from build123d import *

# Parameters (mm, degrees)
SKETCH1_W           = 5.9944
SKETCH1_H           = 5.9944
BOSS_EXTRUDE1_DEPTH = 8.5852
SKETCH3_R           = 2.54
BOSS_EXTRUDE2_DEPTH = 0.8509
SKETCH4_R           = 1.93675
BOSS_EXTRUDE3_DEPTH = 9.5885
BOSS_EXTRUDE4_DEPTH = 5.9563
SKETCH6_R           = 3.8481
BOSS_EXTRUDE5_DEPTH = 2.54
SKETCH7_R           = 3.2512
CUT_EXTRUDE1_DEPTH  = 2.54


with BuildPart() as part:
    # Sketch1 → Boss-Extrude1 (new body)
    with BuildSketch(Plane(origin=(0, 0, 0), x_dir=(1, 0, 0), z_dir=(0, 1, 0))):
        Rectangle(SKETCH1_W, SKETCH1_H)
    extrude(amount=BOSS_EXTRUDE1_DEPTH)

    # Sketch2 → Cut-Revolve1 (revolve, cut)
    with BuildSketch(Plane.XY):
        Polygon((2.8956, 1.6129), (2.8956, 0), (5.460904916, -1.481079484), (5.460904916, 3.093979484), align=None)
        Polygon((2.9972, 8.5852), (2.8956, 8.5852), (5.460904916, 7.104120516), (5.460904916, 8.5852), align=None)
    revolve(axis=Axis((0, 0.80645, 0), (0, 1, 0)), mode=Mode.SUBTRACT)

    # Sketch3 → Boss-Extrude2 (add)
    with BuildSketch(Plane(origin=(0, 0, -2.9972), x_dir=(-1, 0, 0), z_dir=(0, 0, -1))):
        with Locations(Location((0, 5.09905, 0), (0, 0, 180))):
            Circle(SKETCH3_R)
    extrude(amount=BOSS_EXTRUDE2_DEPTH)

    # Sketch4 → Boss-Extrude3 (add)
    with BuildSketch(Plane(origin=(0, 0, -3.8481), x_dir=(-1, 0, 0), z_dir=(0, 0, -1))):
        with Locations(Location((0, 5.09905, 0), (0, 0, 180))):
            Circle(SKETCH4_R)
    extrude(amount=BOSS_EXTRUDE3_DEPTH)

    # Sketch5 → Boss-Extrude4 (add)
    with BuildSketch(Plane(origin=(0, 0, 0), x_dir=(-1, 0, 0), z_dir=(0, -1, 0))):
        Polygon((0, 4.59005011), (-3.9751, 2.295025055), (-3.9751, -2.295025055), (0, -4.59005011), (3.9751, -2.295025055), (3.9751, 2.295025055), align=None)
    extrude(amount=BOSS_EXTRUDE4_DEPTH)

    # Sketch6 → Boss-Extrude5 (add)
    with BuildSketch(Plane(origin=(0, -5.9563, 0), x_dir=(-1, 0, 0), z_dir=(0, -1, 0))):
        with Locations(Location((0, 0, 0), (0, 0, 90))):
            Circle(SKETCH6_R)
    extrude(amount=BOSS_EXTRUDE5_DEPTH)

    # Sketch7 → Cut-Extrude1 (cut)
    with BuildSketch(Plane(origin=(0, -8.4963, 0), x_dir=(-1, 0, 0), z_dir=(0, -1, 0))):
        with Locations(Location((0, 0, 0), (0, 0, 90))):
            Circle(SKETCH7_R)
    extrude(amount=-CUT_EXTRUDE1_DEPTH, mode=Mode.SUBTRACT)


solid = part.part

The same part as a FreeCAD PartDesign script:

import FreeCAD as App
import Part
import Sketcher
from FreeCAD import Vector
Q = App.Units.Quantity


def add_polygon(sketch, points):
    """Adds a closed chain of lines whose ends are joined by coincident constraints."""
    first, n = sketch.GeometryCount, len(points)
    for a, b in zip(points, points[1:] + points[:1]):
        sketch.addGeometry(Part.LineSegment(App.Vector(*a, 0), App.Vector(*b, 0)), False)
    for i in range(n):
        sketch.addConstraint(Sketcher.Constraint("Coincident", first + i, 2, first + (i + 1) % n, 1))

doc = App.newDocument("Part")
params = doc.addObject("Spreadsheet::Sheet", "Params")
for row, (alias, value) in enumerate([
    ("sketch1_width", "0.236 in"),
    ("pad1_length", "0.338 in"),
    ("groove_angle", "360 deg"),
    ("sketch3_diameter", "0.2 in"),
    ("pad2_length", "0.0335 in"),
    ("pad3_length", "0.3775 in"),
    ("pad4_length", "0.2345 in"),
    ("sketch6_diameter", "0.303 in"),
    ("pad5_length", "0.1 in"),
    ("sketch7_diameter", "0.256 in"),
    ("pocket1_length", "0.1 in"),
], start=1):
    params.set(f"A{row}", alias)
    params.set(f"B{row}", "=" + value)
    params.setAlias(f"B{row}", alias)

body = doc.addObject("PartDesign::Body", "Body")

sketch1 = doc.addObject("Sketcher::SketchObject", "Sketch")
body.addObject(sketch1)
sketch1.AttachmentSupport = (doc.XZ_Plane, [""])
sketch1.MapMode = "FlatFace"
add_polygon(sketch1, [(-2.9972, -2.9972), (-2.9972, 2.9972), (2.9972, 2.9972), (2.9972, -2.9972)])
sketch1.addConstraint(Sketcher.Constraint("Vertical", 0))
sketch1.addConstraint(Sketcher.Constraint("Horizontal", 1))
sketch1.addConstraint(Sketcher.Constraint("Vertical", 2))
sketch1.addConstraint(Sketcher.Constraint("Horizontal", 3))
sketch1.addConstraint(Sketcher.Constraint("Symmetric", 0, 2, 2, 2, -1, 1))
sketch1.addConstraint(Sketcher.Constraint("Equal", 3, 0))
sketch1.addConstraint(Sketcher.Constraint("DistanceX", 1, 1, 1, 2, Q("0.236 in")))
sketch1.setExpression("Constraints[10]", "Params.sketch1_width")
pad1 = doc.addObject("PartDesign::Pad", "Pad")
body.addObject(pad1)
pad1.Profile = sketch1
pad1.setExpression("Length", "Params.pad1_length")
pad1.Reversed = True

sketch2 = doc.addObject("Sketcher::SketchObject", "Sketch001")
body.addObject(sketch2)
sketch2.AttachmentSupport = (doc.XY_Plane, [""])
sketch2.MapMode = "FlatFace"
add_polygon(sketch2, [(2.8956, 1.6129), (2.8956, 0), (5.460905, -1.481079), (5.460905, 3.093979)])
add_polygon(sketch2, [(2.8956, 8.5852), (5.460905, 7.104121), (5.460905, 8.5852)])
sketch2.addConstraint(Sketcher.Constraint("Vertical", 0))
sketch2.addConstraint(Sketcher.Constraint("Vertical", 2))
sketch2.addConstraint(Sketcher.Constraint("Vertical", 5))
sketch2.addConstraint(Sketcher.Constraint("Horizontal", 6))
sketch2.addConstraint(Sketcher.Constraint("PointOnObject", 0, 2, -1))
sketch2.addConstraint(Sketcher.Constraint("Parallel", 1, 4))
sketch2.addConstraint(Sketcher.Constraint("Vertical", 2, 2, 4, 2))
sketch2.addConstraint(Sketcher.Constraint("Vertical", 3, 2, 6, 2))
sketch2.addConstraint(Sketcher.Constraint("Equal", 1, 3))
sketch2.addConstraint(Sketcher.Constraint("Angle", 1, Q("-30 deg")))
sketch2.addConstraint(Sketcher.Constraint("DistanceY", 0, 2, 0, 1, Q("0.0635 in")))
sketch2.addConstraint(Sketcher.Constraint("DistanceX", -1, 1, 0, 2, Q("0.114 in")))
sketch2.addConstraint(Sketcher.Constraint("DistanceY", -1, 1, 5, 2, Q("0.338 in")))
sketch2.addConstraint(Sketcher.Constraint("DistanceY", 2, 1, 2, 2, 4.575059))
groove = doc.addObject("PartDesign::Groove", "Groove")
body.addObject(groove)
groove.Profile = sketch2
groove.ReferenceAxis = (sketch2, ["V_Axis"])
groove.setExpression("Angle", "Params.groove_angle")

sketch3 = doc.addObject("Sketcher::SketchObject", "Sketch002")
body.addObject(sketch3)
sketch3.AttachmentSupport = (doc.XY_Plane, [""])
sketch3.MapMode = "FlatFace"
sketch3.AttachmentOffset = App.Placement(Vector(0, 0, -0.118 * 25.4), App.Rotation())
sketch3.addGeometry(Part.Circle(Vector(0, 5.09905, 0), Vector(0, 0, 1), 2.54), False)
sketch3.addConstraint(Sketcher.Constraint("PointOnObject", 0, 3, -2))
sketch3.addConstraint(Sketcher.Constraint("Diameter", 0, Q("0.2 in")))
sketch3.addConstraint(Sketcher.Constraint("DistanceY", -1, 1, 0, 3, 5.09905))
sketch3.setExpression("Constraints[1]", "Params.sketch3_diameter")
pad2 = doc.addObject("PartDesign::Pad", "Pad001")
body.addObject(pad2)
pad2.Profile = sketch3
pad2.setExpression("Length", "Params.pad2_length")
pad2.Reversed = True

sketch4 = doc.addObject("Sketcher::SketchObject", "Sketch003")
body.addObject(sketch4)
sketch4.AttachmentSupport = (doc.XY_Plane, [""])
sketch4.MapMode = "FlatFace"
sketch4.AttachmentOffset = App.Placement(Vector(0, 0, -0.1515 * 25.4), App.Rotation())
sketch4.addGeometry(Part.Circle(Vector(0, 5.09905, 0), Vector(0, 0, 1), 1.93675), False)
sketch4.addConstraint(Sketcher.Constraint("PointOnObject", 0, 3, -2))
sketch4.addConstraint(Sketcher.Constraint("Diameter", 0, Q("0.1525 in")))
sketch4.addConstraint(Sketcher.Constraint("DistanceY", -1, 1, 0, 3, 5.09905))
pad3 = doc.addObject("PartDesign::Pad", "Pad002")
body.addObject(pad3)
pad3.Profile = sketch4
pad3.setExpression("Length", "Params.pad3_length")
pad3.Reversed = True

sketch5 = doc.addObject("Sketcher::SketchObject", "Sketch004")
body.addObject(sketch5)
sketch5.AttachmentSupport = (doc.XZ_Plane, [""])
sketch5.MapMode = "FlatFace"
add_polygon(sketch5, [(0, -4.59005), (3.9751, -2.295025), (3.9751, 2.295025), (0, 4.59005), (-3.9751, 2.295025), (-3.9751, -2.295025)])
sketch5.addConstraint(Sketcher.Constraint("Vertical", 1))
sketch5.addConstraint(Sketcher.Constraint("Vertical", 4))
sketch5.addConstraint(Sketcher.Constraint("Symmetric", 0, 2, 3, 2, -1, 1))
sketch5.addConstraint(Sketcher.Constraint("Symmetric", 2, 2, 5, 2, -1, 1))
sketch5.addConstraint(Sketcher.Constraint("PointOnObject", 2, 2, -2))
sketch5.addConstraint(Sketcher.Constraint("Parallel", 2, 5))
sketch5.addConstraint(Sketcher.Constraint("Horizontal", 1, 2, 3, 2))
sketch5.addConstraint(Sketcher.Constraint("Angle", 0, Q("30 deg")))
sketch5.addConstraint(Sketcher.Constraint("DistanceX", 3, 2, 1, 2, Q("0.313 in")))
sketch5.addConstraint(Sketcher.Constraint("DistanceY", 1, 1, 1, 2, 4.59005))
pad4 = doc.addObject("PartDesign::Pad", "Pad003")
body.addObject(pad4)
pad4.Profile = sketch5
pad4.setExpression("Length", "Params.pad4_length")

sketch6 = doc.addObject("Sketcher::SketchObject", "Sketch005")
body.addObject(sketch6)
sketch6.AttachmentSupport = (doc.XZ_Plane, [""])
sketch6.MapMode = "FlatFace"
sketch6.AttachmentOffset = App.Placement(Vector(0, 0, 0.2345 * 25.4), App.Rotation())
sketch6.addGeometry(Part.Circle(Vector(0, 0, 0), Vector(0, 0, 1), 3.8481), False)
sketch6.addConstraint(Sketcher.Constraint("Coincident", 0, 3, -1, 1))
sketch6.addConstraint(Sketcher.Constraint("Diameter", 0, Q("0.303 in")))
sketch6.setExpression("Constraints[1]", "Params.sketch6_diameter")
pad5 = doc.addObject("PartDesign::Pad", "Pad004")
body.addObject(pad5)
pad5.Profile = sketch6
pad5.setExpression("Length", "Params.pad5_length")

sketch7 = doc.addObject("Sketcher::SketchObject", "Sketch006")
body.addObject(sketch7)
sketch7.AttachmentSupport = (doc.XZ_Plane, [""])
sketch7.MapMode = "FlatFace"
sketch7.AttachmentOffset = App.Placement(Vector(0, 0, 0.3345 * 25.4), App.Rotation())
sketch7.addGeometry(Part.Circle(Vector(0, 0, 0), Vector(0, 0, 1), 3.2512), False)
sketch7.addConstraint(Sketcher.Constraint("Coincident", 0, 3, -1, 1))
sketch7.addConstraint(Sketcher.Constraint("Diameter", 0, Q("0.256 in")))
sketch7.setExpression("Constraints[1]", "Params.sketch7_diameter")
pocket1 = doc.addObject("PartDesign::Pocket", "Pocket")
body.addObject(pocket1)
pocket1.Profile = sketch7
pocket1.setExpression("Length", "Params.pocket1_length")

doc.recompute()
